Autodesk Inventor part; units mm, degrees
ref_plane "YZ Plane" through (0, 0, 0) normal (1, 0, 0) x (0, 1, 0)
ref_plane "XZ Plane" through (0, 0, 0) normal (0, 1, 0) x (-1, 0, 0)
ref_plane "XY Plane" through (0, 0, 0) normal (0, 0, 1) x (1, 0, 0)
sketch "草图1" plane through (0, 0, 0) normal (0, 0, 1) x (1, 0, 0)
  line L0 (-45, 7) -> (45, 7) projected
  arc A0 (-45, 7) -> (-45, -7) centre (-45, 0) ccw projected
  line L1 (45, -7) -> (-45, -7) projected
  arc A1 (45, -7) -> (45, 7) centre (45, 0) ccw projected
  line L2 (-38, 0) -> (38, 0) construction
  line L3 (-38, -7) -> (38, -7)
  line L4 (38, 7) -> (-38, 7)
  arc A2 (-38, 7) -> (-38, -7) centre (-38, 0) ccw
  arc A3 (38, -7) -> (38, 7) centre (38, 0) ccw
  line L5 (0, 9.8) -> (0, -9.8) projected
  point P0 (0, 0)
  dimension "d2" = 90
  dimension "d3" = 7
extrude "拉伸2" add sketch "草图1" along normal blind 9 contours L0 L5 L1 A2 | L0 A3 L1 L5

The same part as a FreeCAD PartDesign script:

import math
import FreeCAD as App
import Part
import Sketcher
from FreeCAD import Vector

doc = App.newDocument("Part")
body = doc.addObject("PartDesign::Body", "Body")

# Sketch on XY plane
sketch1 = body.newObject("Sketcher::SketchObject", "Sketch")
sketch1.AttachmentSupport = (doc.getObject("XY_Plane"), [""])
sketch1.MapMode = "FlatFace"
sketch1.addGeometry([
    Part.ArcOfCircle(Part.Circle(Vector(-38, 0, 0), Vector(0, 0, 1), 7), math.radians(90), math.radians(270)),
    Part.LineSegment(Vector(-38, -7, 0), Vector(38, -7, 0)),
    Part.ArcOfCircle(Part.Circle(Vector(38, 0, 0), Vector(0, 0, 1), 7), math.radians(-90), math.radians(90)),
    Part.LineSegment(Vector(38, 7, 0), Vector(-38, 7, 0)),
], False)
sketch1.addConstraint([
    Sketcher.Constraint("Tangent", 0, 2, 1, 1),
    Sketcher.Constraint("Tangent", 1, 2, 2, 1),
    Sketcher.Constraint("Tangent", 2, 2, 3, 1),
    Sketcher.Constraint("Tangent", 3, 2, 0, 1),
    Sketcher.Constraint("Horizontal", 1),
    Sketcher.Constraint("Horizontal", 3),
    Sketcher.Constraint("Symmetric", 0, 3, 2, 3, -1, 1),
    Sketcher.Constraint("Radius", 0, 7.0),
    Sketcher.Constraint("DistanceX", 1, 1, 1, 2, 76.0),
])
pad1 = body.newObject("PartDesign::Pad", "Pad")
pad1.Profile = sketch1
pad1.Length = 9

doc.recompute()
